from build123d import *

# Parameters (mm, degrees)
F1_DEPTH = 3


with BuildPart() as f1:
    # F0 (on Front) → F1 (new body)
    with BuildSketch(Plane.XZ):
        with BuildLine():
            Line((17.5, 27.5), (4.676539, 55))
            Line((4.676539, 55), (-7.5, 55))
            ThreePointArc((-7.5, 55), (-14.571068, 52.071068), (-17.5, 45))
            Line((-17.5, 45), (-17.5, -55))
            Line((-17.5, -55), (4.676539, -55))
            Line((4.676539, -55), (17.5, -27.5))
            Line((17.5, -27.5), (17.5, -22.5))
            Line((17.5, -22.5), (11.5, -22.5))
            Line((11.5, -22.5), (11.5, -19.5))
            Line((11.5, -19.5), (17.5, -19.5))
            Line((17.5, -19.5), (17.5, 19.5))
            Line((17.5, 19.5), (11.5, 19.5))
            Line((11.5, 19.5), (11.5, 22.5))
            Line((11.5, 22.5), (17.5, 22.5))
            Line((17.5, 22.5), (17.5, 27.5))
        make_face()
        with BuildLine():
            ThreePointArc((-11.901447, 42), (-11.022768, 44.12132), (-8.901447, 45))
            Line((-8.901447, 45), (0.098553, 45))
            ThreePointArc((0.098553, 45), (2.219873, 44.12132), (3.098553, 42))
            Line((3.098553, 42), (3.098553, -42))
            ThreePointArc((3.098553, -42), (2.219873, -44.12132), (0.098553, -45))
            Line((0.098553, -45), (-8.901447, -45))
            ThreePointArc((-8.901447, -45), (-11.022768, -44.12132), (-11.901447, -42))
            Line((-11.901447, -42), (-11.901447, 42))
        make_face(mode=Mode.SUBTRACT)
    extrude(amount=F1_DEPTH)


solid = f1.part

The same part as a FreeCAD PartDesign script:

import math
import FreeCAD as App
import Part
import Sketcher

V = App.Vector
Q = App.Units.Quantity

doc = App.newDocument("Part")
body = doc.addObject("PartDesign::Body", "Body")

# Sketch on XZ plane
sketch1 = doc.addObject("Sketcher::SketchObject", "Sketch")
body.addObject(sketch1)
sketch1.AttachmentSupport = (doc.XZ_Plane, [""])
sketch1.MapMode = "FlatFace"
sketch1.addGeometry([
    Part.LineSegment(V(17.5, 27.5, 0), V(4.7, 55, 0)),  # 0
    Part.LineSegment(V(4.7, 55, 0), V(-7.5, 55, 0)),  # 1
    Part.ArcOfCircle(Part.Circle(V(-7.5, 45, 0), V(0, 0, 1), 10), math.radians(90), math.radians(180)),  # 2
    Part.LineSegment(V(-17.5, 45, 0), V(-17.5, -55, 0)),  # 3
    Part.LineSegment(V(-17.5, -55, 0), V(4.7, -55, 0)),  # 4
    Part.LineSegment(V(4.7, -55, 0), V(17.5, -27.5, 0)),  # 5
    Part.LineSegment(V(17.5, -27.5, 0), V(17.5, -22.5, 0)),  # 6
    Part.LineSegment(V(17.5, -22.5, 0), V(11.5, -22.5, 0)),  # 7
    Part.LineSegment(V(11.5, -22.5, 0), V(11.5, -19.5, 0)),  # 8
    Part.LineSegment(V(11.5, -19.5, 0), V(17.5, -19.5, 0)),  # 9
    Part.LineSegment(V(17.5, -19.5, 0), V(17.5, 19.5, 0)),  # 10
    Part.LineSegment(V(17.5, 19.5, 0), V(11.5, 19.5, 0)),  # 11
    Part.LineSegment(V(11.5, 19.5, 0), V(11.5, 22.5, 0)),  # 12
    Part.LineSegment(V(11.5, 22.5, 0), V(17.5, 22.5, 0)),  # 13
    Part.LineSegment(V(17.5, 22.5, 0), V(17.5, 27.5, 0)),  # 14
    Part.LineSegment(V(-11.9, -42, 0), V(-11.9, 42, 0)),  # 15
    Part.ArcOfCircle(Part.Circle(V(-8.9, 42, 0), V(0, 0, 1), 3), math.radians(90), math.radians(180)),  # 16
    Part.LineSegment(V(-8.9, 45, 0), V(0.1, 45, 0)),  # 17
    Part.ArcOfCircle(Part.Circle(V(0.1, 42, 0), V(0, 0, 1), 3), math.radians(0), math.radians(90)),  # 18
    Part.LineSegment(V(3.1, 42, 0), V(3.1, -42, 0)),  # 19
    Part.ArcOfCircle(Part.Circle(V(0.1, -42, 0), V(0, 0, 1), 3), math.radians(-90), math.radians(0)),  # 20
    Part.LineSegment(V(0.1, -45, 0), V(-8.9, -45, 0)),  # 21
    Part.ArcOfCircle(Part.Circle(V(-8.9, -42, 0), V(0, 0, 1), 3), math.radians(180), math.radians(270)),  # 22
], False)
sketch1.addConstraint([
    Sketcher.Constraint("Coincident", 0, 2, 1, 1),
    Sketcher.Constraint("Tangent", 1, 2, 2, 1),
    Sketcher.Constraint("Tangent", 2, 2, 3, 1),
    Sketcher.Constraint("Coincident", 3, 2, 4, 1),
    Sketcher.Constraint("Coincident", 4, 2, 5, 1),
    Sketcher.Constraint("Coincident", 5, 2, 6, 1),
    Sketcher.Constraint("Coincident", 6, 2, 7, 1),
    Sketcher.Constraint("Coincident", 7, 2, 8, 1),
    Sketcher.Constraint("Coincident", 8, 2, 9, 1),
    Sketcher.Constraint("Coincident", 9, 2, 10, 1),
    Sketcher.Constraint("Coincident", 10, 2, 11, 1),
    Sketcher.Constraint("Coincident", 11, 2, 12, 1),
    Sketcher.Constraint("Coincident", 12, 2, 13, 1),
    Sketcher.Constraint("Coincident", 13, 2, 14, 1),
    Sketcher.Constraint("Coincident", 14, 2, 0, 1),
    Sketcher.Constraint("Tangent", 15, 2, 16, 2),
    Sketcher.Constraint("Tangent", 16, 1, 17, 1),
    Sketcher.Constraint("Tangent", 17, 2, 18, 2),
    Sketcher.Constraint("Tangent", 18, 1, 19, 1),
    Sketcher.Constraint("Tangent", 19, 2, 20, 2),
    Sketcher.Constraint("Tangent", 20, 1, 21, 1),
    Sketcher.Constraint("Tangent", 21, 2, 22, 2),
    Sketcher.Constraint("Tangent", 22, 1, 15, 1),
    Sketcher.Constraint("Horizontal", 1),
    Sketcher.Constraint("Vertical", 3),
    Sketcher.Constraint("Horizontal", 4),
    Sketcher.Constraint("Vertical", 6),
    Sketcher.Constraint("Horizontal", 7),
    Sketcher.Constraint("Vertical", 8),
    Sketcher.Constraint("Horizontal", 9),
    Sketcher.Constraint("Vertical", 10),
    Sketcher.Constraint("Horizontal", 11),
    Sketcher.Constraint("Vertical", 12),
    Sketcher.Constraint("Horizontal", 13),
    Sketcher.Constraint("Vertical", 14),
    Sketcher.Constraint("Vertical", 15),
    Sketcher.Constraint("Horizontal", 17),
    Sketcher.Constraint("Vertical", 19),
    Sketcher.Constraint("Horizontal", 21),
    Sketcher.Constraint("Equal", 16, 18),
    Sketcher.Constraint("Equal", 18, 20),
    Sketcher.Constraint("Equal", 20, 22),
    Sketcher.Constraint("Symmetric", 0, 2, 4, 2, -1),
    Sketcher.Constraint("Symmetric", 8, 2, 11, 2, -1),
    Sketcher.Constraint("Symmetric", 6, 2, 13, 2, -1),
    Sketcher.Constraint("Horizontal", 2, 2, 16, 1),
    Sketcher.Constraint("Vertical", 6, 2, 9, 2),
    Sketcher.Constraint("Equal", 6, 14),
    Sketcher.Constraint("Radius", 2, 9.999999),
    Sketcher.Constraint("Radius", 16, 2.999999),
    Sketcher.Constraint("DistanceX", 7, 2, 7, 1, 6.0),
    Sketcher.Constraint("DistanceX", 17, 1, 17, 2, 9.0),
    Sketcher.Constraint("DistanceY", 3, 2, 3, 1, 100.0),
    Sketcher.Constraint("DistanceY", 6, 1, 6, 2, 5.0),
    Sketcher.Constraint("DistanceY", 8, 1, 8, 2, 3.0),
    Sketcher.Constraint("DistanceY", 10, 1, 10, 2, 39.0),
    Sketcher.Constraint("DistanceY", 15, 1, 15, 2, 84.0),
    Sketcher.Constraint("Angle", 0, Q("115.000001 deg")),
    Sketcher.Constraint("DistanceX", 3, 2, 5, 2, 35.0),
    Sketcher.Constraint("DistanceX", 2, 3, -1, 1, 7.500001),
    Sketcher.Constraint("DistanceX", -1, 1, 18, 3, 0.098552),
])
pad1 = doc.addObject("PartDesign::Pad", "Pad")
body.addObject(pad1)
pad1.Profile = sketch1
pad1.Length = 3

doc.recompute()
